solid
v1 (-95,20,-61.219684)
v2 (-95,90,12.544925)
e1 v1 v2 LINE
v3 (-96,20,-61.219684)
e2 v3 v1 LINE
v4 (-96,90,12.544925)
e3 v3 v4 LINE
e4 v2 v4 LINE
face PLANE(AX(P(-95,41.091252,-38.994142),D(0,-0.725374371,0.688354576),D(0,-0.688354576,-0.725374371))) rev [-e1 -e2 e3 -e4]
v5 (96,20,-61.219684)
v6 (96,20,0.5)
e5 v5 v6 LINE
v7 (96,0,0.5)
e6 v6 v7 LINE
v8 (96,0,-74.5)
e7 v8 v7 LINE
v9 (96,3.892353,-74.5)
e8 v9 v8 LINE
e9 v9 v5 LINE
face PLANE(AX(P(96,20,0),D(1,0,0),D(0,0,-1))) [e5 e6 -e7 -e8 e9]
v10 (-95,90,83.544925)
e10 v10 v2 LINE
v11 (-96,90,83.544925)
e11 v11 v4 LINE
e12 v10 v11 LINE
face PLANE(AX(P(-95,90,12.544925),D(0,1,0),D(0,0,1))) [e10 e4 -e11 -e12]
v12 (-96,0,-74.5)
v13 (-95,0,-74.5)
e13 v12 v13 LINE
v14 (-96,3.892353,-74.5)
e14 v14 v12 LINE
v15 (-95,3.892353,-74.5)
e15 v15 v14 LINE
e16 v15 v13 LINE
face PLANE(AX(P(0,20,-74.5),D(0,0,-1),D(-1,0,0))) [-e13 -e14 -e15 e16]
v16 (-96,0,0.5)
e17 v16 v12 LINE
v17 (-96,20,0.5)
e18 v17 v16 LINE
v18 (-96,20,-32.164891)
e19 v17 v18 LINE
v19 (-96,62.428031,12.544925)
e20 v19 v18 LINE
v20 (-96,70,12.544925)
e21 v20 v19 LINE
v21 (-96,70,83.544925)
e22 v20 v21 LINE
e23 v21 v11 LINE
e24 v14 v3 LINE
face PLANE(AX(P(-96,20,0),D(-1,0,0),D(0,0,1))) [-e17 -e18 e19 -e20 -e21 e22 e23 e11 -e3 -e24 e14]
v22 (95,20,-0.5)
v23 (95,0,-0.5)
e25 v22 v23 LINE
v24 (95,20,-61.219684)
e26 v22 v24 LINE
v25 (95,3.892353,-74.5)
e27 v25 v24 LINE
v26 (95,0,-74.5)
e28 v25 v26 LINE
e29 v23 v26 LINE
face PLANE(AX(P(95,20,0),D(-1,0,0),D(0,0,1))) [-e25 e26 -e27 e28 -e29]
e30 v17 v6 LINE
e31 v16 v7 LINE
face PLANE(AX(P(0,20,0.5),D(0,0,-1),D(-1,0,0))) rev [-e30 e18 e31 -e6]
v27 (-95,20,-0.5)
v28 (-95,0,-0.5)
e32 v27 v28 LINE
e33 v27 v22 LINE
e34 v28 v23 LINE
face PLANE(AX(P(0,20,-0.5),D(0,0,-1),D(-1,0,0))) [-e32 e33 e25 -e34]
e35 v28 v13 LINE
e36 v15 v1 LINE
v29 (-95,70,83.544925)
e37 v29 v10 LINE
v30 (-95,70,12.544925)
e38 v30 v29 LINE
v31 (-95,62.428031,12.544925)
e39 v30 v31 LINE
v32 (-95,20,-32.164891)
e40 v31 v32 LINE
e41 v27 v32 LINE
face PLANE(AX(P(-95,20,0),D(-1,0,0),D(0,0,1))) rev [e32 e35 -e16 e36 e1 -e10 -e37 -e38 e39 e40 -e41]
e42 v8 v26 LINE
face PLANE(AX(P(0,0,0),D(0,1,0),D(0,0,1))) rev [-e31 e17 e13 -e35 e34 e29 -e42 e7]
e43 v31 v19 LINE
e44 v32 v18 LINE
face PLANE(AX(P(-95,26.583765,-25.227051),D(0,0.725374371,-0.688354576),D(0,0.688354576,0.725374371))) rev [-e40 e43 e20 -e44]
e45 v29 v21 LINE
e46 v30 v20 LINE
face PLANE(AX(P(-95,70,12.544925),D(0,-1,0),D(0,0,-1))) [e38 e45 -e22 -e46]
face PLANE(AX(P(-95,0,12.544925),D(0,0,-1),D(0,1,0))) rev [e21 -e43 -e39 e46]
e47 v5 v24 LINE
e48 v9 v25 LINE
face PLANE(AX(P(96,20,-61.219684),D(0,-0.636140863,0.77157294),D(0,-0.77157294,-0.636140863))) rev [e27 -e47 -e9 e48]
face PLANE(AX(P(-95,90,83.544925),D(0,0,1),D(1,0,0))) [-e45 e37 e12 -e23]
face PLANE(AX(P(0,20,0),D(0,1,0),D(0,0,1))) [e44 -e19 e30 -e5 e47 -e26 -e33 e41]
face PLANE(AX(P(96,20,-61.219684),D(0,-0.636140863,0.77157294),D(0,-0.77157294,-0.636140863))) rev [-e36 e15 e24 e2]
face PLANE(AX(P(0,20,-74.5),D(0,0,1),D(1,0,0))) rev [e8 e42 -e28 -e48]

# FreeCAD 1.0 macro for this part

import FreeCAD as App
import Part
import Sketcher
Q = App.Units.Quantity


def add_polygon(sketch, points):
    """Adds a closed chain of lines whose ends are joined by coincident constraints."""
    first, n = sketch.GeometryCount, len(points)
    for a, b in zip(points, points[1:] + points[:1]):
        sketch.addGeometry(Part.LineSegment(App.Vector(*a, 0), App.Vector(*b, 0)), False)
    for i in range(n):
        sketch.addConstraint(Sketcher.Constraint("Coincident", first + i, 2, first + (i + 1) % n, 1))

doc = App.newDocument("Part")
body = doc.addObject("PartDesign::Body", "Body")

sketch1 = body.newObject("Sketcher::SketchObject", "Sketch")
sketch1.AttachmentSupport = (doc.getObject("XZ_Plane"), [""])
sketch1.MapMode = "FlatFace"
add_polygon(sketch1, [(-96, -74.5), (-96, 0.5), (96, 0.5), (96, -74.5), (95, -74.5), (95, -0.5), (-95, -0.5), (-95, -74.5)])
sketch1.addConstraint([
    Sketcher.Constraint("Vertical", 0),
    Sketcher.Constraint("Horizontal", 1),
    Sketcher.Constraint("Vertical", 2),
    Sketcher.Constraint("Horizontal", 3),
    Sketcher.Constraint("Vertical", 4),
    Sketcher.Constraint("Horizontal", 5),
    Sketcher.Constraint("Vertical", 6),
    Sketcher.Constraint("Horizontal", 7),
    Sketcher.Constraint("Symmetric", 3, 2, 6, 2, -2),
    Sketcher.Constraint("Equal", 3, 7),
    Sketcher.Constraint("DistanceX", 1, 1, 1, 2, Q("192 mm")),
    Sketcher.Constraint("DistanceX", 3, 2, 3, 1, Q("1 mm")),
    Sketcher.Constraint("DistanceY", 0, 1, 0, 2, Q("75 mm")),
    Sketcher.Constraint("DistanceY", 4, 1, 4, 2, Q("74 mm")),
    Sketcher.Constraint("DistanceY", -1, 1, 0, 2, Q("0.5 mm")),
])
pad1 = body.newObject("PartDesign::Pad", "Pad")
pad1.Profile = sketch1
pad1.Length = 20
pad1.Reversed = True

sketch2 = body.newObject("Sketcher::SketchObject", "Sketch001")
sketch2.AttachmentSupport = (doc.getObject("YZ_Plane"), [""])
sketch2.MapMode = "FlatFace"
sketch2.AttachmentOffset = App.Placement(App.Vector(0, 0, -96), App.Rotation())
add_polygon(sketch2, [(90, 13), (20, -61), (7, -74), (0, -67), (0, -53), (20, -32), (62, 13)])
sketch2.addConstraint([
    Sketcher.Constraint("Vertical", 3),
    Sketcher.Constraint("Horizontal", 6),
    Sketcher.Constraint("PointOnObject", 2, 2, -2),
    Sketcher.Constraint("Parallel", 0, 1),
    Sketcher.Constraint("Perpendicular", 1, 2),
    Sketcher.Constraint("Perpendicular", 2, 4),
    Sketcher.Constraint("Parallel", 4, 5),
    Sketcher.Constraint("Vertical", 0, 2, 4, 2),
    Sketcher.Constraint("DistanceX", -1, 1, 0, 2, Q("20 mm")),
    Sketcher.Constraint("DistanceX", -1, 1, 6, 2, Q("90 mm")),
    Sketcher.Constraint("Angle", 0, Q("-133.5 deg")),
    Sketcher.Constraint("DistanceY", 1, 2, -1, 1, Q("74.5 mm")),
    Sketcher.Constraint("DistanceX", 6, 1, 6, 2, Q("27.571969 mm")),
    Sketcher.Constraint("DistanceY", 3, 1, 3, 2, Q("14.239588 mm")),
])
pad2 = body.newObject("PartDesign::Pad", "Pad001")
pad2.Profile = sketch2
pad2.Length = 1

sketch3 = body.newObject("Sketcher::SketchObject", "Sketch002")
sketch3.AttachmentSupport = (doc.getObject("YZ_Plane"), [""])
sketch3.MapMode = "FlatFace"
sketch3.AttachmentOffset = App.Placement(App.Vector(0, 0, -96), App.Rotation())
add_polygon(sketch3, [(4, -74), (20, -61), (20, -74)])
sketch3.addConstraint([
    Sketcher.Constraint("Vertical", 1),
    Sketcher.Constraint("Horizontal", 2),
    Sketcher.Constraint("DistanceX", -1, 1, 0, 2, Q("20 mm")),
    Sketcher.Constraint("DistanceY", 1, 2, -1, 1, Q("74.5 mm")),
    Sketcher.Constraint("DistanceX", 2, 2, 2, 1, Q("16.107647 mm")),
    Sketcher.Constraint("DistanceY", 1, 2, 1, 1, Q("13.280316 mm")),
])
pocket1 = body.newObject("PartDesign::Pocket", "Pocket")
pocket1.Profile = sketch3
pocket1.Type = "ThroughAll"
pocket1.Reversed = True

sketch4 = body.newObject("Sketcher::SketchObject", "Sketch003")
sketch4.AttachmentSupport = (doc.getObject("YZ_Plane"), [""])
sketch4.MapMode = "FlatFace"
sketch4.AttachmentOffset = App.Placement(App.Vector(0, 0, -96), App.Rotation())
add_polygon(sketch4, [(90, 13), (70, 13), (70, 84), (90, 84)])
sketch4.addConstraint([
    Sketcher.Constraint("Horizontal", 0),
    Sketcher.Constraint("Vertical", 1),
    Sketcher.Constraint("Horizontal", 2),
    Sketcher.Constraint("Vertical", 3),
    Sketcher.Constraint("DistanceX", 0, 2, 0, 1, Q("20 mm")),
    Sketcher.Constraint("DistanceY", 1, 1, 1, 2, Q("71 mm")),
    Sketcher.Constraint("DistanceX", -1, 1, 0, 2, Q("70 mm")),
    Sketcher.Constraint("DistanceY", -1, 1, 0, 2, Q("12.544925 mm")),
])
pad3 = body.newObject("PartDesign::Pad", "Pad002")
pad3.Profile = sketch4
pad3.Length = 1

doc.recompute()
